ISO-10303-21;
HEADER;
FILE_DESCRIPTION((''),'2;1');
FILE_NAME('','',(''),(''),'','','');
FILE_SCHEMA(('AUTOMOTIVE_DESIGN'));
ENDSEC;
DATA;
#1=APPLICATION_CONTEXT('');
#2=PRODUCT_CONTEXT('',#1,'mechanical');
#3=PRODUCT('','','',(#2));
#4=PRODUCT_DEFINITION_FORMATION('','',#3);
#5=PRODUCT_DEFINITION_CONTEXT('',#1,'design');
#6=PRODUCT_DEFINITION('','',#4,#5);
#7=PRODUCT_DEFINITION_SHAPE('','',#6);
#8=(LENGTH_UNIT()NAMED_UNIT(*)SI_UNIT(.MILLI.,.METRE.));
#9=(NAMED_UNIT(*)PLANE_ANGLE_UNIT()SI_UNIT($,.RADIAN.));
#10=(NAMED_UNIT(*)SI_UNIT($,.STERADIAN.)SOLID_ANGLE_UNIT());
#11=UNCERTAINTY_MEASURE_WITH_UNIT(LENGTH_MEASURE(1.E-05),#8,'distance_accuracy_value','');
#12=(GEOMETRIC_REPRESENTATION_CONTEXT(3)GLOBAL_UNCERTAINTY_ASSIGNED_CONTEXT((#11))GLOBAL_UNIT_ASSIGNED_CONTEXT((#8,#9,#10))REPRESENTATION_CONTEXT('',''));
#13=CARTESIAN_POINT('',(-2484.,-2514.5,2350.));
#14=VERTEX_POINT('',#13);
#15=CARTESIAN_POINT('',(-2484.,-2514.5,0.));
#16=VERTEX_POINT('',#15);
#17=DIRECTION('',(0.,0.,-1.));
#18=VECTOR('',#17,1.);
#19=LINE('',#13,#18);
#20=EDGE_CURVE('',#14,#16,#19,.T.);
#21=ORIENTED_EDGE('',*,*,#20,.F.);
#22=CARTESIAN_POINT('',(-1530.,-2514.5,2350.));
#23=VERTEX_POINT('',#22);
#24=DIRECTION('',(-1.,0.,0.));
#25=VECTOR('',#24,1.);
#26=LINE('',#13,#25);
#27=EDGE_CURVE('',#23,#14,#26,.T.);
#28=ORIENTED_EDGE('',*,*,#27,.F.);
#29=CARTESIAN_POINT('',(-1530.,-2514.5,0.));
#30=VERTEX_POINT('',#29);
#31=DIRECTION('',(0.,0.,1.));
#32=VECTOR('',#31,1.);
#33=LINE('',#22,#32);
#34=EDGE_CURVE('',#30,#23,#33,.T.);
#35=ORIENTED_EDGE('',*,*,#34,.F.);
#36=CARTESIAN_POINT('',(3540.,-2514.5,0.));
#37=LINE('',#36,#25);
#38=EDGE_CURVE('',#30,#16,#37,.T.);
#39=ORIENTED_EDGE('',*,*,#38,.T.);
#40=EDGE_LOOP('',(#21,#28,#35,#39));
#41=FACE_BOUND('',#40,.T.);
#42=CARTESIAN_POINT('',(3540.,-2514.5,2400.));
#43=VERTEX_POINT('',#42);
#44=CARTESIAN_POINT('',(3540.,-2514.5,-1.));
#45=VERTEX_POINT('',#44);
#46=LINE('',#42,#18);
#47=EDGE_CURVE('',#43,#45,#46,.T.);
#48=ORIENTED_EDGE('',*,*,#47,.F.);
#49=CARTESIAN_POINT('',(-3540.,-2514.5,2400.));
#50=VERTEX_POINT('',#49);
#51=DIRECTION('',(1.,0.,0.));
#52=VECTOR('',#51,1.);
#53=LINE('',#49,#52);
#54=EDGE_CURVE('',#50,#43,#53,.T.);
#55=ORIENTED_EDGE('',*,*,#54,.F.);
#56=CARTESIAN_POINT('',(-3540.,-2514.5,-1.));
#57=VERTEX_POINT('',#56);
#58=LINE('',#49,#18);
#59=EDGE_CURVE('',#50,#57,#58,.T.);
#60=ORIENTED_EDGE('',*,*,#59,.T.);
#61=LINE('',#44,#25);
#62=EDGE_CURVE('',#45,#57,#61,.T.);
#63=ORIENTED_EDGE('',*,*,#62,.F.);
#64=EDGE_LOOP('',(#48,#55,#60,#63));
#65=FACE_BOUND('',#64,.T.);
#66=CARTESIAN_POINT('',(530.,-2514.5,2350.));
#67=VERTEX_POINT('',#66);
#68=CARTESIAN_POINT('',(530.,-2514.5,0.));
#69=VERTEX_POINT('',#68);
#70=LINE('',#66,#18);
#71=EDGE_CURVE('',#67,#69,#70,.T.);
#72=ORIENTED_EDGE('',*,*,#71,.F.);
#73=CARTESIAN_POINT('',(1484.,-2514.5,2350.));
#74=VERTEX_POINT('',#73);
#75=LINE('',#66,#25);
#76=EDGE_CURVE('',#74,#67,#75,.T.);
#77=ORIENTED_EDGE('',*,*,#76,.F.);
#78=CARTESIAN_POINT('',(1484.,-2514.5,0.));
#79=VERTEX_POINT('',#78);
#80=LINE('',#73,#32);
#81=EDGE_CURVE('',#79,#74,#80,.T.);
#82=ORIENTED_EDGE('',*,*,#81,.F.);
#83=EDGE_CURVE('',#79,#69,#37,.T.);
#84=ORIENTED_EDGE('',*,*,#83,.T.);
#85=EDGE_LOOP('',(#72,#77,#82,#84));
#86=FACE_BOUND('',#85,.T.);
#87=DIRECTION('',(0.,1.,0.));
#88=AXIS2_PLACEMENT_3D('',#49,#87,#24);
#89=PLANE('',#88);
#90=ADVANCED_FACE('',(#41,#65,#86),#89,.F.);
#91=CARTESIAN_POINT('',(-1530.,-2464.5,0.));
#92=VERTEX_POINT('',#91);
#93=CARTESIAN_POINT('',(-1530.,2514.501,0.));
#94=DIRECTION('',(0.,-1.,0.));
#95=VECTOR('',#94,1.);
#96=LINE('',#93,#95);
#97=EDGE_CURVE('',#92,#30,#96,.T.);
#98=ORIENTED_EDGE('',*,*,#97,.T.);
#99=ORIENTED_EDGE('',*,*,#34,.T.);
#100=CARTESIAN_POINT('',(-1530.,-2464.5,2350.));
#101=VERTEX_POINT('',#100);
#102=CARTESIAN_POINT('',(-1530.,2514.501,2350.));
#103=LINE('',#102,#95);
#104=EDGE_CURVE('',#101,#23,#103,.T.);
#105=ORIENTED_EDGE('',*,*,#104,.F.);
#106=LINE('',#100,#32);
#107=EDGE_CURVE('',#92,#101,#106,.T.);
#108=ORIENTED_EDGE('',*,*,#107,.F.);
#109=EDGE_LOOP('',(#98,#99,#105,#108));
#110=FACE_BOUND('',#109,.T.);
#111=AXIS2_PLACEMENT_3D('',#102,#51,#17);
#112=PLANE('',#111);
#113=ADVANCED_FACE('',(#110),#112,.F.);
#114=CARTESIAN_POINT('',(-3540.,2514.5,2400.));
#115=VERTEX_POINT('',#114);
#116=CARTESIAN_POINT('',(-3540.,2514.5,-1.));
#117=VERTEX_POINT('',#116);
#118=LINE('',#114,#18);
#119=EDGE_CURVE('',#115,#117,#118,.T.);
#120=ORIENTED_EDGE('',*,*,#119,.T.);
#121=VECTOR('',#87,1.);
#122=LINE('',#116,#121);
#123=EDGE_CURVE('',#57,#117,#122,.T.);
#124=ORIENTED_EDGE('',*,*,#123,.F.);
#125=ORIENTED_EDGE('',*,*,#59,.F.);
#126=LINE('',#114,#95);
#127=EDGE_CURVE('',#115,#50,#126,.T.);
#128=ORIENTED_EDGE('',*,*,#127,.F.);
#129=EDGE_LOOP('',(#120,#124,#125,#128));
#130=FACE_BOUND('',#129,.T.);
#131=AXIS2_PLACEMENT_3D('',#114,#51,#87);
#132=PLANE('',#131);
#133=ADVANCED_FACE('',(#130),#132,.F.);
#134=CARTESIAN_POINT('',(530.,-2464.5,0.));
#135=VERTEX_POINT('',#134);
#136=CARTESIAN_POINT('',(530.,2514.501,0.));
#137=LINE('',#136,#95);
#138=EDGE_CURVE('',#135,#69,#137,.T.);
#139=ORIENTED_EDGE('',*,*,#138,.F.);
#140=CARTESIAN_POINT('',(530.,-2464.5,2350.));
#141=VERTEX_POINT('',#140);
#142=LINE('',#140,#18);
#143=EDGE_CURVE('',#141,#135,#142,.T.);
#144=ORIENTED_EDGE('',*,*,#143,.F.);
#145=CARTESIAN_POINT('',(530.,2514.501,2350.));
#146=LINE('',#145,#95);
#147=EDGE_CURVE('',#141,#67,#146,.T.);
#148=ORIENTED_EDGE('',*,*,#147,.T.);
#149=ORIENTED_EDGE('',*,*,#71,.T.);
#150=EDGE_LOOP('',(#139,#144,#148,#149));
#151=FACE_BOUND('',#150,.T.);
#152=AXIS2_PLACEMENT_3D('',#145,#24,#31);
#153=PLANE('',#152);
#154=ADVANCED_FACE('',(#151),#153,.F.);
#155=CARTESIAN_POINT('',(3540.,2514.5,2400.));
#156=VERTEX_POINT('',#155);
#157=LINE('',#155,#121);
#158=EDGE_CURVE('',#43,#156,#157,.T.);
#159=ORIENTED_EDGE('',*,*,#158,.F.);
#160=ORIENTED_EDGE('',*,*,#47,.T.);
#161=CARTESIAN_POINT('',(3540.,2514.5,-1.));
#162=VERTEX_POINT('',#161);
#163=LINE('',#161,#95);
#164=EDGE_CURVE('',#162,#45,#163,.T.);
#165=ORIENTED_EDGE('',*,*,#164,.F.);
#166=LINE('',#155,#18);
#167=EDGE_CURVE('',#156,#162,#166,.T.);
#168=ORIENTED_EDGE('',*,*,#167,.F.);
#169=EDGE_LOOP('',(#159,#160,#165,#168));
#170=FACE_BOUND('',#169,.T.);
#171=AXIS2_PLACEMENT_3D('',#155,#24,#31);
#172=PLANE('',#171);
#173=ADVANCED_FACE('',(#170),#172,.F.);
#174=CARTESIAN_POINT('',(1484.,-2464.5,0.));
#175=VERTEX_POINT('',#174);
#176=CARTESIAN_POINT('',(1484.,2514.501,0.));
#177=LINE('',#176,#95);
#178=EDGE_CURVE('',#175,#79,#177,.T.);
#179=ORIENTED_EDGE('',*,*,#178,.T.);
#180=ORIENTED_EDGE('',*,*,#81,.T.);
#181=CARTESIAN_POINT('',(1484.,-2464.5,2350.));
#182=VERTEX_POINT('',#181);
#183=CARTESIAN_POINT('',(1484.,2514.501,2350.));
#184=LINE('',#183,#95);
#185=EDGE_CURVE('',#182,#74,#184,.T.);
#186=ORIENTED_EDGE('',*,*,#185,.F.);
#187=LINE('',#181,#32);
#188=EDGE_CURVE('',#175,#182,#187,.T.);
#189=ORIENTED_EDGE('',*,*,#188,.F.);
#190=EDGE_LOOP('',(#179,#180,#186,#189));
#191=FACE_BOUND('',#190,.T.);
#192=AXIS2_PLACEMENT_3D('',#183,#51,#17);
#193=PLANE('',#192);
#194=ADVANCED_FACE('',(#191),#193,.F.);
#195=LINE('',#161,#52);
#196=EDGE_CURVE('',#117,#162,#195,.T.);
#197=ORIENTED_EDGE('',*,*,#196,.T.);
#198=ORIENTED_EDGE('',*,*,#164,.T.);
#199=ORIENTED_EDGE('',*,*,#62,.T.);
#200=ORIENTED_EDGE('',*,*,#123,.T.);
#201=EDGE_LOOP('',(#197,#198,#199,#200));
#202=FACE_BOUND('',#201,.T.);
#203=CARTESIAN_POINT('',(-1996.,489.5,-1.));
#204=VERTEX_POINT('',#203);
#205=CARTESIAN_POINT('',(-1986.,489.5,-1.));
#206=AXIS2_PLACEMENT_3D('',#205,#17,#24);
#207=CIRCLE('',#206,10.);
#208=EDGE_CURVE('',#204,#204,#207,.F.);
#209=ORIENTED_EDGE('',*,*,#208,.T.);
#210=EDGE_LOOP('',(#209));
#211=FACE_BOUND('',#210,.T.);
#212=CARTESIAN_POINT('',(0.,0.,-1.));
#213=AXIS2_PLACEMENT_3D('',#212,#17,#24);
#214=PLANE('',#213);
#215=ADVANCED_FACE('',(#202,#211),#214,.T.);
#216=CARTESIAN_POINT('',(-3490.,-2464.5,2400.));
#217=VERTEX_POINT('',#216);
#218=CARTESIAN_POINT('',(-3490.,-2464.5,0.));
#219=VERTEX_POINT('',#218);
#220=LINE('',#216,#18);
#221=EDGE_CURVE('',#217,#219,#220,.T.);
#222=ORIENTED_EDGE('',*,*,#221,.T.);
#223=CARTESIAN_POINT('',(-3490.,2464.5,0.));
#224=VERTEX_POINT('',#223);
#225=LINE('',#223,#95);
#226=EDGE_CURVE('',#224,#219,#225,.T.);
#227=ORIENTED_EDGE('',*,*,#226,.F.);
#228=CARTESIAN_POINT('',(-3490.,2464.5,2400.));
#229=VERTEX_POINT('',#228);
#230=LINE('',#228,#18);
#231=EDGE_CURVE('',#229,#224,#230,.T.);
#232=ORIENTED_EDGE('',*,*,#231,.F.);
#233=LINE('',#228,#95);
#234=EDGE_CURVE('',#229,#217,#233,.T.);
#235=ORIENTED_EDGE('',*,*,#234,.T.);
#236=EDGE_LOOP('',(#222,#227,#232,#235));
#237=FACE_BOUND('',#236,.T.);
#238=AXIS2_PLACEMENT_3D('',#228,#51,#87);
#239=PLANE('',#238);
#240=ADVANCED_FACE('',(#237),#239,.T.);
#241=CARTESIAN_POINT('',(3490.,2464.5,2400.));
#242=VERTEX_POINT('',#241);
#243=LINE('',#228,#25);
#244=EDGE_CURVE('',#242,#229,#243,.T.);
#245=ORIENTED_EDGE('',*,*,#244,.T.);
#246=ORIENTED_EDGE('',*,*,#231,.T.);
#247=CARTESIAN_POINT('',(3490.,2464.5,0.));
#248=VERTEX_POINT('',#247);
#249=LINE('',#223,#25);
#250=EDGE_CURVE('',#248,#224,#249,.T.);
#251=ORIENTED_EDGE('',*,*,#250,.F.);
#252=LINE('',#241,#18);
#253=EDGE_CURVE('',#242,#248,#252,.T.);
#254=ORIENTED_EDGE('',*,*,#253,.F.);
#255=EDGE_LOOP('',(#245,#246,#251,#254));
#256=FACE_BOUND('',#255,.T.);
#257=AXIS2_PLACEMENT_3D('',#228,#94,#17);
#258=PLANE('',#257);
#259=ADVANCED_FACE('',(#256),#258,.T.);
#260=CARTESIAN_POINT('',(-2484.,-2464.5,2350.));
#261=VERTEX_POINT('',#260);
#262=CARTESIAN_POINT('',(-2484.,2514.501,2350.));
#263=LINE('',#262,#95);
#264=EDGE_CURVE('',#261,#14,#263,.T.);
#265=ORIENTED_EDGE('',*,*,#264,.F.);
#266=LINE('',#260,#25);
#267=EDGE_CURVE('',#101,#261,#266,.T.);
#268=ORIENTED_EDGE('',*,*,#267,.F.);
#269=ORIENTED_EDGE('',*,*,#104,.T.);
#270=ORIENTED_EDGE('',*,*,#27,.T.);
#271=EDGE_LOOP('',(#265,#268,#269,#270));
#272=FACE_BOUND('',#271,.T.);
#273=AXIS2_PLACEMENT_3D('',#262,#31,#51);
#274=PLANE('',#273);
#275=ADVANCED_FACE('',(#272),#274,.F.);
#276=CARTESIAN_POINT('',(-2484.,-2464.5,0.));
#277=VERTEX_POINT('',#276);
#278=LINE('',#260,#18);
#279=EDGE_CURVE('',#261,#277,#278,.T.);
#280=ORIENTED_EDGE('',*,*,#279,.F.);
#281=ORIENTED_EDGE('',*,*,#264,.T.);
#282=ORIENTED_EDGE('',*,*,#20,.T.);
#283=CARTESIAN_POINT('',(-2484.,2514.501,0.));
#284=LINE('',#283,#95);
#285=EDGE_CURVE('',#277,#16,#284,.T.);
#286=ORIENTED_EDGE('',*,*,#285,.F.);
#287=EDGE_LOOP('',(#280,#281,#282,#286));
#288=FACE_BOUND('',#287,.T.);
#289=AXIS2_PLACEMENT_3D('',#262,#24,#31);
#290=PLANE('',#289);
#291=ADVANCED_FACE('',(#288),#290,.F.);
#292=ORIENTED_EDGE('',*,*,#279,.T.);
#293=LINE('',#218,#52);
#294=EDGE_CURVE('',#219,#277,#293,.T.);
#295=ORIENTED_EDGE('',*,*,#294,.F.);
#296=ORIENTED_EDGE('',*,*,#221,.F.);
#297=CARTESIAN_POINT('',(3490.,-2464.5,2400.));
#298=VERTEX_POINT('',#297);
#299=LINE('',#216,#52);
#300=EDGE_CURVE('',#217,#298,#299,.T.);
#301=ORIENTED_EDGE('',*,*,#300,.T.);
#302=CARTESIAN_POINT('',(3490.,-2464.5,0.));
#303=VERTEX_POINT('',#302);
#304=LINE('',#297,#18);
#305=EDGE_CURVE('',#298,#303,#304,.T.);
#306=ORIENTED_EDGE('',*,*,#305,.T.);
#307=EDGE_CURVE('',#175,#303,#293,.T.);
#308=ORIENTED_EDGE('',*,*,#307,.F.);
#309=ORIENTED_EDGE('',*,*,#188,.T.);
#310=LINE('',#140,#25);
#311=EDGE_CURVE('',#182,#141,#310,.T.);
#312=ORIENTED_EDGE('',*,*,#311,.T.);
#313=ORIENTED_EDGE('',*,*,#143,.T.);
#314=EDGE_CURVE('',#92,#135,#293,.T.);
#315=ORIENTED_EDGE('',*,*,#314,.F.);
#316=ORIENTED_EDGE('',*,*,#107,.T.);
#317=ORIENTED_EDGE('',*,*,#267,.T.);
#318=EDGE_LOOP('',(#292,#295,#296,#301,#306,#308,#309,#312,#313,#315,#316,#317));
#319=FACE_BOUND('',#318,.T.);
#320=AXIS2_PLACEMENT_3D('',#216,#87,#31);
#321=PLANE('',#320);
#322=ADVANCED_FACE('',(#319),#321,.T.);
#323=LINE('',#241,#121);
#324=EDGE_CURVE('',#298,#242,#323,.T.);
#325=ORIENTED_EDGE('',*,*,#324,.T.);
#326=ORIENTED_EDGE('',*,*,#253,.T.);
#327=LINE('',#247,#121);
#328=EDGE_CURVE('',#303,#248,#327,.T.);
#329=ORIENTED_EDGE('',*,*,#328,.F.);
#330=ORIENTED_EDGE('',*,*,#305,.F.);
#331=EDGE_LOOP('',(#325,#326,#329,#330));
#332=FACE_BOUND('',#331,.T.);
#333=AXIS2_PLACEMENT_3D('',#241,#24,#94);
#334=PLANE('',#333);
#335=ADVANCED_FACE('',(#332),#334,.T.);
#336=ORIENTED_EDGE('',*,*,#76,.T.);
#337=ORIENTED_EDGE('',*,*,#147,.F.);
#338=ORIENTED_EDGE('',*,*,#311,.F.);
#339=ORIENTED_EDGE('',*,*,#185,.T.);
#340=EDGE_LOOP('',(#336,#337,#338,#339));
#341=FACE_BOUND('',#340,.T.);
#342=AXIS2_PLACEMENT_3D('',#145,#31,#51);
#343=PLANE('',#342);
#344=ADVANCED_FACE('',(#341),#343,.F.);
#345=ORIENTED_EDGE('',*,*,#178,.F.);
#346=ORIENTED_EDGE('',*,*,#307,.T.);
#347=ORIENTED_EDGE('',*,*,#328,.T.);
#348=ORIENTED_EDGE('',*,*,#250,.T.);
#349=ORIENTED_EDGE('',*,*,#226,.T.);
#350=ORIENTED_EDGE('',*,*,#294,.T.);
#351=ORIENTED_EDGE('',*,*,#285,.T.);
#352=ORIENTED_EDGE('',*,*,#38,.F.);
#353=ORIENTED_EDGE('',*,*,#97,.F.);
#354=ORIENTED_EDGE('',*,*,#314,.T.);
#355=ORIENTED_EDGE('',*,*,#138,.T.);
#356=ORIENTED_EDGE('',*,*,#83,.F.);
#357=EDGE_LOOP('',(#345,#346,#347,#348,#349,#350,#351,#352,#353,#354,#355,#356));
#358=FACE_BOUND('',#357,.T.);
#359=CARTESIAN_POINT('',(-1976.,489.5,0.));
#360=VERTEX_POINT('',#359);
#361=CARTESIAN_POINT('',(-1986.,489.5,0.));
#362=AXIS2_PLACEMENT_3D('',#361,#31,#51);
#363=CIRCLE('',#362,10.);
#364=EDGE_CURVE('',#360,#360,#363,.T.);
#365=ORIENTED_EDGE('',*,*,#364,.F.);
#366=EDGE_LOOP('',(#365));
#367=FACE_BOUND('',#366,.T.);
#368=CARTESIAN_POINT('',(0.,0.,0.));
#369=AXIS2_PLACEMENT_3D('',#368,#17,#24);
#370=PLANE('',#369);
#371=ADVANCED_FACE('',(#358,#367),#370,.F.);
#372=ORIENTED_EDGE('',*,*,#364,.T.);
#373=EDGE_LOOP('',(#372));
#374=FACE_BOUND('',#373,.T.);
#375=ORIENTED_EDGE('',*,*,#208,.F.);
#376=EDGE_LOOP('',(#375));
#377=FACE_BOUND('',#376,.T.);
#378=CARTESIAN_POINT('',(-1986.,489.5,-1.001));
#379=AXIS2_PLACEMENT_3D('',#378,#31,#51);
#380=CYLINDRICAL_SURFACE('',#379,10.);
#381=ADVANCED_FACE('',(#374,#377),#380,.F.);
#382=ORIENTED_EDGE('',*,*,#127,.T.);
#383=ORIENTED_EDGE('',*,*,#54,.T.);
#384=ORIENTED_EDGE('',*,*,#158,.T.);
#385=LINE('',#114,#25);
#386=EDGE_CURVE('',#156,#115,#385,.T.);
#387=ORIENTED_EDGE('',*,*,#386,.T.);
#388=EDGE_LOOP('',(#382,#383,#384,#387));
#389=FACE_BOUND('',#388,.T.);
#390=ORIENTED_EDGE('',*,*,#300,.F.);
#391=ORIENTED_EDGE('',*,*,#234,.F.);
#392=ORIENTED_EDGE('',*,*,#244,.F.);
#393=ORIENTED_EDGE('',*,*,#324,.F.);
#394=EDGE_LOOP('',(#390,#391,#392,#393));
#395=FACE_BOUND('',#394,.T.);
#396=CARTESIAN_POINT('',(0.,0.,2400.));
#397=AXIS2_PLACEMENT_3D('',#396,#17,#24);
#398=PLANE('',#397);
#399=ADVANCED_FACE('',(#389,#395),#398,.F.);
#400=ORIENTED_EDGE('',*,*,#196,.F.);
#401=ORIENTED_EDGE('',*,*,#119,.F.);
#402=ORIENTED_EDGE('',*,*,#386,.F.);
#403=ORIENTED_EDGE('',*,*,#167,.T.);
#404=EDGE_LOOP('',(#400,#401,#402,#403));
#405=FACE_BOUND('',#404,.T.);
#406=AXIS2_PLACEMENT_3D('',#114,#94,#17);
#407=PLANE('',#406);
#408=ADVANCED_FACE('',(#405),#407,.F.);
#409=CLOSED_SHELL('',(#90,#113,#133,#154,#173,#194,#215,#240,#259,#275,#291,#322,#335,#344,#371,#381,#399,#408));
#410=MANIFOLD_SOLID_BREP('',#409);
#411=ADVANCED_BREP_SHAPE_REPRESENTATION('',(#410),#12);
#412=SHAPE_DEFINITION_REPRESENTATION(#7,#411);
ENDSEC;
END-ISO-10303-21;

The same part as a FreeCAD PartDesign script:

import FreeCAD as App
import Part
import Sketcher

V = App.Vector

doc = App.newDocument("Part")
body = doc.addObject("PartDesign::Body", "Body")

sketch1 = doc.addObject("Sketcher::SketchObject", "Sketch")
body.addObject(sketch1)
sketch1.AttachmentSupport = (doc.XY_Plane, [""])
sketch1.MapMode = "FlatFace"
sketch1.addGeometry(Part.LineSegment(V(-3540, 2514, 0), V(-3540, -2514, 0)), False)
sketch1.addGeometry(Part.LineSegment(V(-3540, -2514, 0), V(3540, -2514, 0)), False)
sketch1.addGeometry(Part.LineSegment(V(3540, -2514, 0), V(3540, 2514, 0)), False)
sketch1.addGeometry(Part.LineSegment(V(3540, 2514, 0), V(-3540, 2514, 0)), False)
sketch1.addGeometry(Part.LineSegment(V(3490, -2464, 0), V(-3490, -2464, 0)), False)
sketch1.addGeometry(Part.LineSegment(V(-3490, -2464, 0), V(-3490, 2464, 0)), False)
sketch1.addGeometry(Part.LineSegment(V(-3490, 2464, 0), V(3490, 2464, 0)), False)
sketch1.addGeometry(Part.LineSegment(V(3490, 2464, 0), V(3490, -2464, 0)), False)
sketch1.addConstraint(Sketcher.Constraint("Coincident", 0, 2, 1, 1))
sketch1.addConstraint(Sketcher.Constraint("Coincident", 1, 2, 2, 1))
sketch1.addConstraint(Sketcher.Constraint("Coincident", 2, 2, 3, 1))
sketch1.addConstraint(Sketcher.Constraint("Coincident", 3, 2, 0, 1))
sketch1.addConstraint(Sketcher.Constraint("Coincident", 4, 2, 5, 1))
sketch1.addConstraint(Sketcher.Constraint("Coincident", 5, 2, 6, 1))
sketch1.addConstraint(Sketcher.Constraint("Coincident", 6, 2, 7, 1))
sketch1.addConstraint(Sketcher.Constraint("Coincident", 7, 2, 4, 1))
sketch1.addConstraint(Sketcher.Constraint("Vertical", 0))
sketch1.addConstraint(Sketcher.Constraint("Horizontal", 1))
sketch1.addConstraint(Sketcher.Constraint("Vertical", 2))
sketch1.addConstraint(Sketcher.Constraint("Horizontal", 3))
sketch1.addConstraint(Sketcher.Constraint("Horizontal", 4))
sketch1.addConstraint(Sketcher.Constraint("Vertical", 5))
sketch1.addConstraint(Sketcher.Constraint("Horizontal", 6))
sketch1.addConstraint(Sketcher.Constraint("Vertical", 7))
sketch1.addConstraint(Sketcher.Constraint("Symmetric", 0, 2, 2, 2, -1, 1))
sketch1.addConstraint(Sketcher.Constraint("Symmetric", 4, 2, 6, 2, -1, 1))
sketch1.addConstraint(Sketcher.Constraint("DistanceX", 1, 1, 1, 2, 7080.0))
sketch1.addConstraint(Sketcher.Constraint("DistanceX", 4, 2, 4, 1, 6980.0))
sketch1.addConstraint(Sketcher.Constraint("DistanceY", 0, 2, 0, 1, 5029.0))
sketch1.addConstraint(Sketcher.Constraint("DistanceY", 5, 1, 5, 2, 4929.0))
pad1 = doc.addObject("PartDesign::Pad", "Pad")
body.addObject(pad1)
pad1.Profile = sketch1
pad1.Length = 2400

sketch2 = doc.addObject("Sketcher::SketchObject", "Sketch001")
body.addObject(sketch2)
sketch2.AttachmentSupport = (doc.XZ_Plane, [""])
sketch2.MapMode = "FlatFace"
sketch2.AttachmentOffset = App.Placement(V(0, 0, 2514.5), App.Rotation())
sketch2.addGeometry(Part.LineSegment(V(-2484, 2350, 0), V(-2484, 0, 0)), False)
sketch2.addGeometry(Part.LineSegment(V(-2484, 0, 0), V(-1530, 0, 0)), False)
sketch2.addGeometry(Part.LineSegment(V(-1530, 0, 0), V(-1530, 2350, 0)), False)
sketch2.addGeometry(Part.LineSegment(V(-1530, 2350, 0), V(-2484, 2350, 0)), False)
sketch2.addConstraint(Sketcher.Constraint("Coincident", 0, 2, 1, 1))
sketch2.addConstraint(Sketcher.Constraint("Coincident", 1, 2, 2, 1))
sketch2.addConstraint(Sketcher.Constraint("Coincident", 2, 2, 3, 1))
sketch2.addConstraint(Sketcher.Constraint("Coincident", 3, 2, 0, 1))
sketch2.addConstraint(Sketcher.Constraint("Vertical", 0))
sketch2.addConstraint(Sketcher.Constraint("Horizontal", 1))
sketch2.addConstraint(Sketcher.Constraint("Vertical", 2))
sketch2.addConstraint(Sketcher.Constraint("Horizontal", 3))
sketch2.addConstraint(Sketcher.Constraint("PointOnObject", 0, 2, -1))
sketch2.addConstraint(Sketcher.Constraint("DistanceX", 1, 1, 1, 2, 954.0))
sketch2.addConstraint(Sketcher.Constraint("DistanceY", 0, 2, 0, 1, 2350.0))
sketch2.addConstraint(Sketcher.Constraint("DistanceX", 0, 2, -1, 1, 2484.0))
pocket1 = doc.addObject("PartDesign::Pocket", "Pocket")
body.addObject(pocket1)
pocket1.Profile = sketch2
pocket1.Type = "UpToFirst"

sketch3 = doc.addObject("Sketcher::SketchObject", "Sketch002")
body.addObject(sketch3)
sketch3.AttachmentSupport = (doc.XZ_Plane, [""])
sketch3.MapMode = "FlatFace"
sketch3.AttachmentOffset = App.Placement(V(0, 0, 2514.5), App.Rotation())
sketch3.addGeometry(Part.LineSegment(V(530, 2350, 0), V(530, 0, 0)), False)
sketch3.addGeometry(Part.LineSegment(V(530, 0, 0), V(1484, 0, 0)), False)
sketch3.addGeometry(Part.LineSegment(V(1484, 0, 0), V(1484, 2350, 0)), False)
sketch3.addGeometry(Part.LineSegment(V(1484, 2350, 0), V(530, 2350, 0)), False)
sketch3.addConstraint(Sketcher.Constraint("Coincident", 0, 2, 1, 1))
sketch3.addConstraint(Sketcher.Constraint("Coincident", 1, 2, 2, 1))
sketch3.addConstraint(Sketcher.Constraint("Coincident", 2, 2, 3, 1))
sketch3.addConstraint(Sketcher.Constraint("Coincident", 3, 2, 0, 1))
sketch3.addConstraint(Sketcher.Constraint("Vertical", 0))
sketch3.addConstraint(Sketcher.Constraint("Horizontal", 1))
sketch3.addConstraint(Sketcher.Constraint("Vertical", 2))
sketch3.addConstraint(Sketcher.Constraint("Horizontal", 3))
sketch3.addConstraint(Sketcher.Constraint("PointOnObject", 0, 2, -1))
sketch3.addConstraint(Sketcher.Constraint("DistanceX", 1, 1, 1, 2, 954.0))
sketch3.addConstraint(Sketcher.Constraint("DistanceY", 0, 2, 0, 1, 2350.0))
sketch3.addConstraint(Sketcher.Constraint("DistanceX", -1, 1, 0, 2, 530.0))
pocket2 = doc.addObject("PartDesign::Pocket", "Pocket001")
body.addObject(pocket2)
pocket2.Profile = sketch3
pocket2.Type = "UpToFirst"

sketch4 = doc.addObject("Sketcher::SketchObject", "Sketch003")
body.addObject(sketch4)
sketch4.AttachmentSupport = (doc.XY_Plane, [""])
sketch4.MapMode = "FlatFace"
sketch4.addGeometry(Part.LineSegment(V(3540, 2514, 0), V(3540, -2514, 0)), False)
sketch4.addGeometry(Part.LineSegment(V(3540, -2514, 0), V(-3540, -2514, 0)), False)
sketch4.addGeometry(Part.LineSegment(V(-3540, -2514, 0), V(-3540, 2514, 0)), False)
sketch4.addGeometry(Part.LineSegment(V(-3540, 2514, 0), V(3540, 2514, 0)), False)
sketch4.addConstraint(Sketcher.Constraint("Coincident", 0, 2, 1, 1))
sketch4.addConstraint(Sketcher.Constraint("Coincident", 1, 2, 2, 1))
sketch4.addConstraint(Sketcher.Constraint("Coincident", 2, 2, 3, 1))
sketch4.addConstraint(Sketcher.Constraint("Coincident", 3, 2, 0, 1))
sketch4.addConstraint(Sketcher.Constraint("Vertical", 0))
sketch4.addConstraint(Sketcher.Constraint("Horizontal", 1))
sketch4.addConstraint(Sketcher.Constraint("Vertical", 2))
sketch4.addConstraint(Sketcher.Constraint("Horizontal", 3))
sketch4.addConstraint(Sketcher.Constraint("Symmetric", 0, 2, 2, 2, -1, 1))
sketch4.addConstraint(Sketcher.Constraint("DistanceX", 1, 2, 1, 1, 7080.0))
sketch4.addConstraint(Sketcher.Constraint("DistanceY", 0, 2, 0, 1, 5029.0))
pad2 = doc.addObject("PartDesign::Pad", "Pad001")
body.addObject(pad2)
pad2.Profile = sketch4
pad2.Length = 1
pad2.Reversed = True

sketch5 = doc.addObject("Sketcher::SketchObject", "Sketch004")
body.addObject(sketch5)
sketch5.AttachmentSupport = (doc.XY_Plane, [""])
sketch5.MapMode = "FlatFace"
sketch5.addGeometry(Part.Circle(V(-1986, 490, 0), V(0, 0, 1), 10), False)
sketch5.addConstraint(Sketcher.Constraint("Diameter", 0, 20.0))
sketch5.addConstraint(Sketcher.Constraint("DistanceX", 0, 3, -1, 1, 1986.0))
sketch5.addConstraint(Sketcher.Constraint("DistanceY", -1, 1, 0, 3, 489.5))
pocket3 = doc.addObject("PartDesign::Pocket", "Pocket002")
body.addObject(pocket3)
pocket3.Profile = sketch5
pocket3.Type = "UpToFirst"

doc.recompute()
